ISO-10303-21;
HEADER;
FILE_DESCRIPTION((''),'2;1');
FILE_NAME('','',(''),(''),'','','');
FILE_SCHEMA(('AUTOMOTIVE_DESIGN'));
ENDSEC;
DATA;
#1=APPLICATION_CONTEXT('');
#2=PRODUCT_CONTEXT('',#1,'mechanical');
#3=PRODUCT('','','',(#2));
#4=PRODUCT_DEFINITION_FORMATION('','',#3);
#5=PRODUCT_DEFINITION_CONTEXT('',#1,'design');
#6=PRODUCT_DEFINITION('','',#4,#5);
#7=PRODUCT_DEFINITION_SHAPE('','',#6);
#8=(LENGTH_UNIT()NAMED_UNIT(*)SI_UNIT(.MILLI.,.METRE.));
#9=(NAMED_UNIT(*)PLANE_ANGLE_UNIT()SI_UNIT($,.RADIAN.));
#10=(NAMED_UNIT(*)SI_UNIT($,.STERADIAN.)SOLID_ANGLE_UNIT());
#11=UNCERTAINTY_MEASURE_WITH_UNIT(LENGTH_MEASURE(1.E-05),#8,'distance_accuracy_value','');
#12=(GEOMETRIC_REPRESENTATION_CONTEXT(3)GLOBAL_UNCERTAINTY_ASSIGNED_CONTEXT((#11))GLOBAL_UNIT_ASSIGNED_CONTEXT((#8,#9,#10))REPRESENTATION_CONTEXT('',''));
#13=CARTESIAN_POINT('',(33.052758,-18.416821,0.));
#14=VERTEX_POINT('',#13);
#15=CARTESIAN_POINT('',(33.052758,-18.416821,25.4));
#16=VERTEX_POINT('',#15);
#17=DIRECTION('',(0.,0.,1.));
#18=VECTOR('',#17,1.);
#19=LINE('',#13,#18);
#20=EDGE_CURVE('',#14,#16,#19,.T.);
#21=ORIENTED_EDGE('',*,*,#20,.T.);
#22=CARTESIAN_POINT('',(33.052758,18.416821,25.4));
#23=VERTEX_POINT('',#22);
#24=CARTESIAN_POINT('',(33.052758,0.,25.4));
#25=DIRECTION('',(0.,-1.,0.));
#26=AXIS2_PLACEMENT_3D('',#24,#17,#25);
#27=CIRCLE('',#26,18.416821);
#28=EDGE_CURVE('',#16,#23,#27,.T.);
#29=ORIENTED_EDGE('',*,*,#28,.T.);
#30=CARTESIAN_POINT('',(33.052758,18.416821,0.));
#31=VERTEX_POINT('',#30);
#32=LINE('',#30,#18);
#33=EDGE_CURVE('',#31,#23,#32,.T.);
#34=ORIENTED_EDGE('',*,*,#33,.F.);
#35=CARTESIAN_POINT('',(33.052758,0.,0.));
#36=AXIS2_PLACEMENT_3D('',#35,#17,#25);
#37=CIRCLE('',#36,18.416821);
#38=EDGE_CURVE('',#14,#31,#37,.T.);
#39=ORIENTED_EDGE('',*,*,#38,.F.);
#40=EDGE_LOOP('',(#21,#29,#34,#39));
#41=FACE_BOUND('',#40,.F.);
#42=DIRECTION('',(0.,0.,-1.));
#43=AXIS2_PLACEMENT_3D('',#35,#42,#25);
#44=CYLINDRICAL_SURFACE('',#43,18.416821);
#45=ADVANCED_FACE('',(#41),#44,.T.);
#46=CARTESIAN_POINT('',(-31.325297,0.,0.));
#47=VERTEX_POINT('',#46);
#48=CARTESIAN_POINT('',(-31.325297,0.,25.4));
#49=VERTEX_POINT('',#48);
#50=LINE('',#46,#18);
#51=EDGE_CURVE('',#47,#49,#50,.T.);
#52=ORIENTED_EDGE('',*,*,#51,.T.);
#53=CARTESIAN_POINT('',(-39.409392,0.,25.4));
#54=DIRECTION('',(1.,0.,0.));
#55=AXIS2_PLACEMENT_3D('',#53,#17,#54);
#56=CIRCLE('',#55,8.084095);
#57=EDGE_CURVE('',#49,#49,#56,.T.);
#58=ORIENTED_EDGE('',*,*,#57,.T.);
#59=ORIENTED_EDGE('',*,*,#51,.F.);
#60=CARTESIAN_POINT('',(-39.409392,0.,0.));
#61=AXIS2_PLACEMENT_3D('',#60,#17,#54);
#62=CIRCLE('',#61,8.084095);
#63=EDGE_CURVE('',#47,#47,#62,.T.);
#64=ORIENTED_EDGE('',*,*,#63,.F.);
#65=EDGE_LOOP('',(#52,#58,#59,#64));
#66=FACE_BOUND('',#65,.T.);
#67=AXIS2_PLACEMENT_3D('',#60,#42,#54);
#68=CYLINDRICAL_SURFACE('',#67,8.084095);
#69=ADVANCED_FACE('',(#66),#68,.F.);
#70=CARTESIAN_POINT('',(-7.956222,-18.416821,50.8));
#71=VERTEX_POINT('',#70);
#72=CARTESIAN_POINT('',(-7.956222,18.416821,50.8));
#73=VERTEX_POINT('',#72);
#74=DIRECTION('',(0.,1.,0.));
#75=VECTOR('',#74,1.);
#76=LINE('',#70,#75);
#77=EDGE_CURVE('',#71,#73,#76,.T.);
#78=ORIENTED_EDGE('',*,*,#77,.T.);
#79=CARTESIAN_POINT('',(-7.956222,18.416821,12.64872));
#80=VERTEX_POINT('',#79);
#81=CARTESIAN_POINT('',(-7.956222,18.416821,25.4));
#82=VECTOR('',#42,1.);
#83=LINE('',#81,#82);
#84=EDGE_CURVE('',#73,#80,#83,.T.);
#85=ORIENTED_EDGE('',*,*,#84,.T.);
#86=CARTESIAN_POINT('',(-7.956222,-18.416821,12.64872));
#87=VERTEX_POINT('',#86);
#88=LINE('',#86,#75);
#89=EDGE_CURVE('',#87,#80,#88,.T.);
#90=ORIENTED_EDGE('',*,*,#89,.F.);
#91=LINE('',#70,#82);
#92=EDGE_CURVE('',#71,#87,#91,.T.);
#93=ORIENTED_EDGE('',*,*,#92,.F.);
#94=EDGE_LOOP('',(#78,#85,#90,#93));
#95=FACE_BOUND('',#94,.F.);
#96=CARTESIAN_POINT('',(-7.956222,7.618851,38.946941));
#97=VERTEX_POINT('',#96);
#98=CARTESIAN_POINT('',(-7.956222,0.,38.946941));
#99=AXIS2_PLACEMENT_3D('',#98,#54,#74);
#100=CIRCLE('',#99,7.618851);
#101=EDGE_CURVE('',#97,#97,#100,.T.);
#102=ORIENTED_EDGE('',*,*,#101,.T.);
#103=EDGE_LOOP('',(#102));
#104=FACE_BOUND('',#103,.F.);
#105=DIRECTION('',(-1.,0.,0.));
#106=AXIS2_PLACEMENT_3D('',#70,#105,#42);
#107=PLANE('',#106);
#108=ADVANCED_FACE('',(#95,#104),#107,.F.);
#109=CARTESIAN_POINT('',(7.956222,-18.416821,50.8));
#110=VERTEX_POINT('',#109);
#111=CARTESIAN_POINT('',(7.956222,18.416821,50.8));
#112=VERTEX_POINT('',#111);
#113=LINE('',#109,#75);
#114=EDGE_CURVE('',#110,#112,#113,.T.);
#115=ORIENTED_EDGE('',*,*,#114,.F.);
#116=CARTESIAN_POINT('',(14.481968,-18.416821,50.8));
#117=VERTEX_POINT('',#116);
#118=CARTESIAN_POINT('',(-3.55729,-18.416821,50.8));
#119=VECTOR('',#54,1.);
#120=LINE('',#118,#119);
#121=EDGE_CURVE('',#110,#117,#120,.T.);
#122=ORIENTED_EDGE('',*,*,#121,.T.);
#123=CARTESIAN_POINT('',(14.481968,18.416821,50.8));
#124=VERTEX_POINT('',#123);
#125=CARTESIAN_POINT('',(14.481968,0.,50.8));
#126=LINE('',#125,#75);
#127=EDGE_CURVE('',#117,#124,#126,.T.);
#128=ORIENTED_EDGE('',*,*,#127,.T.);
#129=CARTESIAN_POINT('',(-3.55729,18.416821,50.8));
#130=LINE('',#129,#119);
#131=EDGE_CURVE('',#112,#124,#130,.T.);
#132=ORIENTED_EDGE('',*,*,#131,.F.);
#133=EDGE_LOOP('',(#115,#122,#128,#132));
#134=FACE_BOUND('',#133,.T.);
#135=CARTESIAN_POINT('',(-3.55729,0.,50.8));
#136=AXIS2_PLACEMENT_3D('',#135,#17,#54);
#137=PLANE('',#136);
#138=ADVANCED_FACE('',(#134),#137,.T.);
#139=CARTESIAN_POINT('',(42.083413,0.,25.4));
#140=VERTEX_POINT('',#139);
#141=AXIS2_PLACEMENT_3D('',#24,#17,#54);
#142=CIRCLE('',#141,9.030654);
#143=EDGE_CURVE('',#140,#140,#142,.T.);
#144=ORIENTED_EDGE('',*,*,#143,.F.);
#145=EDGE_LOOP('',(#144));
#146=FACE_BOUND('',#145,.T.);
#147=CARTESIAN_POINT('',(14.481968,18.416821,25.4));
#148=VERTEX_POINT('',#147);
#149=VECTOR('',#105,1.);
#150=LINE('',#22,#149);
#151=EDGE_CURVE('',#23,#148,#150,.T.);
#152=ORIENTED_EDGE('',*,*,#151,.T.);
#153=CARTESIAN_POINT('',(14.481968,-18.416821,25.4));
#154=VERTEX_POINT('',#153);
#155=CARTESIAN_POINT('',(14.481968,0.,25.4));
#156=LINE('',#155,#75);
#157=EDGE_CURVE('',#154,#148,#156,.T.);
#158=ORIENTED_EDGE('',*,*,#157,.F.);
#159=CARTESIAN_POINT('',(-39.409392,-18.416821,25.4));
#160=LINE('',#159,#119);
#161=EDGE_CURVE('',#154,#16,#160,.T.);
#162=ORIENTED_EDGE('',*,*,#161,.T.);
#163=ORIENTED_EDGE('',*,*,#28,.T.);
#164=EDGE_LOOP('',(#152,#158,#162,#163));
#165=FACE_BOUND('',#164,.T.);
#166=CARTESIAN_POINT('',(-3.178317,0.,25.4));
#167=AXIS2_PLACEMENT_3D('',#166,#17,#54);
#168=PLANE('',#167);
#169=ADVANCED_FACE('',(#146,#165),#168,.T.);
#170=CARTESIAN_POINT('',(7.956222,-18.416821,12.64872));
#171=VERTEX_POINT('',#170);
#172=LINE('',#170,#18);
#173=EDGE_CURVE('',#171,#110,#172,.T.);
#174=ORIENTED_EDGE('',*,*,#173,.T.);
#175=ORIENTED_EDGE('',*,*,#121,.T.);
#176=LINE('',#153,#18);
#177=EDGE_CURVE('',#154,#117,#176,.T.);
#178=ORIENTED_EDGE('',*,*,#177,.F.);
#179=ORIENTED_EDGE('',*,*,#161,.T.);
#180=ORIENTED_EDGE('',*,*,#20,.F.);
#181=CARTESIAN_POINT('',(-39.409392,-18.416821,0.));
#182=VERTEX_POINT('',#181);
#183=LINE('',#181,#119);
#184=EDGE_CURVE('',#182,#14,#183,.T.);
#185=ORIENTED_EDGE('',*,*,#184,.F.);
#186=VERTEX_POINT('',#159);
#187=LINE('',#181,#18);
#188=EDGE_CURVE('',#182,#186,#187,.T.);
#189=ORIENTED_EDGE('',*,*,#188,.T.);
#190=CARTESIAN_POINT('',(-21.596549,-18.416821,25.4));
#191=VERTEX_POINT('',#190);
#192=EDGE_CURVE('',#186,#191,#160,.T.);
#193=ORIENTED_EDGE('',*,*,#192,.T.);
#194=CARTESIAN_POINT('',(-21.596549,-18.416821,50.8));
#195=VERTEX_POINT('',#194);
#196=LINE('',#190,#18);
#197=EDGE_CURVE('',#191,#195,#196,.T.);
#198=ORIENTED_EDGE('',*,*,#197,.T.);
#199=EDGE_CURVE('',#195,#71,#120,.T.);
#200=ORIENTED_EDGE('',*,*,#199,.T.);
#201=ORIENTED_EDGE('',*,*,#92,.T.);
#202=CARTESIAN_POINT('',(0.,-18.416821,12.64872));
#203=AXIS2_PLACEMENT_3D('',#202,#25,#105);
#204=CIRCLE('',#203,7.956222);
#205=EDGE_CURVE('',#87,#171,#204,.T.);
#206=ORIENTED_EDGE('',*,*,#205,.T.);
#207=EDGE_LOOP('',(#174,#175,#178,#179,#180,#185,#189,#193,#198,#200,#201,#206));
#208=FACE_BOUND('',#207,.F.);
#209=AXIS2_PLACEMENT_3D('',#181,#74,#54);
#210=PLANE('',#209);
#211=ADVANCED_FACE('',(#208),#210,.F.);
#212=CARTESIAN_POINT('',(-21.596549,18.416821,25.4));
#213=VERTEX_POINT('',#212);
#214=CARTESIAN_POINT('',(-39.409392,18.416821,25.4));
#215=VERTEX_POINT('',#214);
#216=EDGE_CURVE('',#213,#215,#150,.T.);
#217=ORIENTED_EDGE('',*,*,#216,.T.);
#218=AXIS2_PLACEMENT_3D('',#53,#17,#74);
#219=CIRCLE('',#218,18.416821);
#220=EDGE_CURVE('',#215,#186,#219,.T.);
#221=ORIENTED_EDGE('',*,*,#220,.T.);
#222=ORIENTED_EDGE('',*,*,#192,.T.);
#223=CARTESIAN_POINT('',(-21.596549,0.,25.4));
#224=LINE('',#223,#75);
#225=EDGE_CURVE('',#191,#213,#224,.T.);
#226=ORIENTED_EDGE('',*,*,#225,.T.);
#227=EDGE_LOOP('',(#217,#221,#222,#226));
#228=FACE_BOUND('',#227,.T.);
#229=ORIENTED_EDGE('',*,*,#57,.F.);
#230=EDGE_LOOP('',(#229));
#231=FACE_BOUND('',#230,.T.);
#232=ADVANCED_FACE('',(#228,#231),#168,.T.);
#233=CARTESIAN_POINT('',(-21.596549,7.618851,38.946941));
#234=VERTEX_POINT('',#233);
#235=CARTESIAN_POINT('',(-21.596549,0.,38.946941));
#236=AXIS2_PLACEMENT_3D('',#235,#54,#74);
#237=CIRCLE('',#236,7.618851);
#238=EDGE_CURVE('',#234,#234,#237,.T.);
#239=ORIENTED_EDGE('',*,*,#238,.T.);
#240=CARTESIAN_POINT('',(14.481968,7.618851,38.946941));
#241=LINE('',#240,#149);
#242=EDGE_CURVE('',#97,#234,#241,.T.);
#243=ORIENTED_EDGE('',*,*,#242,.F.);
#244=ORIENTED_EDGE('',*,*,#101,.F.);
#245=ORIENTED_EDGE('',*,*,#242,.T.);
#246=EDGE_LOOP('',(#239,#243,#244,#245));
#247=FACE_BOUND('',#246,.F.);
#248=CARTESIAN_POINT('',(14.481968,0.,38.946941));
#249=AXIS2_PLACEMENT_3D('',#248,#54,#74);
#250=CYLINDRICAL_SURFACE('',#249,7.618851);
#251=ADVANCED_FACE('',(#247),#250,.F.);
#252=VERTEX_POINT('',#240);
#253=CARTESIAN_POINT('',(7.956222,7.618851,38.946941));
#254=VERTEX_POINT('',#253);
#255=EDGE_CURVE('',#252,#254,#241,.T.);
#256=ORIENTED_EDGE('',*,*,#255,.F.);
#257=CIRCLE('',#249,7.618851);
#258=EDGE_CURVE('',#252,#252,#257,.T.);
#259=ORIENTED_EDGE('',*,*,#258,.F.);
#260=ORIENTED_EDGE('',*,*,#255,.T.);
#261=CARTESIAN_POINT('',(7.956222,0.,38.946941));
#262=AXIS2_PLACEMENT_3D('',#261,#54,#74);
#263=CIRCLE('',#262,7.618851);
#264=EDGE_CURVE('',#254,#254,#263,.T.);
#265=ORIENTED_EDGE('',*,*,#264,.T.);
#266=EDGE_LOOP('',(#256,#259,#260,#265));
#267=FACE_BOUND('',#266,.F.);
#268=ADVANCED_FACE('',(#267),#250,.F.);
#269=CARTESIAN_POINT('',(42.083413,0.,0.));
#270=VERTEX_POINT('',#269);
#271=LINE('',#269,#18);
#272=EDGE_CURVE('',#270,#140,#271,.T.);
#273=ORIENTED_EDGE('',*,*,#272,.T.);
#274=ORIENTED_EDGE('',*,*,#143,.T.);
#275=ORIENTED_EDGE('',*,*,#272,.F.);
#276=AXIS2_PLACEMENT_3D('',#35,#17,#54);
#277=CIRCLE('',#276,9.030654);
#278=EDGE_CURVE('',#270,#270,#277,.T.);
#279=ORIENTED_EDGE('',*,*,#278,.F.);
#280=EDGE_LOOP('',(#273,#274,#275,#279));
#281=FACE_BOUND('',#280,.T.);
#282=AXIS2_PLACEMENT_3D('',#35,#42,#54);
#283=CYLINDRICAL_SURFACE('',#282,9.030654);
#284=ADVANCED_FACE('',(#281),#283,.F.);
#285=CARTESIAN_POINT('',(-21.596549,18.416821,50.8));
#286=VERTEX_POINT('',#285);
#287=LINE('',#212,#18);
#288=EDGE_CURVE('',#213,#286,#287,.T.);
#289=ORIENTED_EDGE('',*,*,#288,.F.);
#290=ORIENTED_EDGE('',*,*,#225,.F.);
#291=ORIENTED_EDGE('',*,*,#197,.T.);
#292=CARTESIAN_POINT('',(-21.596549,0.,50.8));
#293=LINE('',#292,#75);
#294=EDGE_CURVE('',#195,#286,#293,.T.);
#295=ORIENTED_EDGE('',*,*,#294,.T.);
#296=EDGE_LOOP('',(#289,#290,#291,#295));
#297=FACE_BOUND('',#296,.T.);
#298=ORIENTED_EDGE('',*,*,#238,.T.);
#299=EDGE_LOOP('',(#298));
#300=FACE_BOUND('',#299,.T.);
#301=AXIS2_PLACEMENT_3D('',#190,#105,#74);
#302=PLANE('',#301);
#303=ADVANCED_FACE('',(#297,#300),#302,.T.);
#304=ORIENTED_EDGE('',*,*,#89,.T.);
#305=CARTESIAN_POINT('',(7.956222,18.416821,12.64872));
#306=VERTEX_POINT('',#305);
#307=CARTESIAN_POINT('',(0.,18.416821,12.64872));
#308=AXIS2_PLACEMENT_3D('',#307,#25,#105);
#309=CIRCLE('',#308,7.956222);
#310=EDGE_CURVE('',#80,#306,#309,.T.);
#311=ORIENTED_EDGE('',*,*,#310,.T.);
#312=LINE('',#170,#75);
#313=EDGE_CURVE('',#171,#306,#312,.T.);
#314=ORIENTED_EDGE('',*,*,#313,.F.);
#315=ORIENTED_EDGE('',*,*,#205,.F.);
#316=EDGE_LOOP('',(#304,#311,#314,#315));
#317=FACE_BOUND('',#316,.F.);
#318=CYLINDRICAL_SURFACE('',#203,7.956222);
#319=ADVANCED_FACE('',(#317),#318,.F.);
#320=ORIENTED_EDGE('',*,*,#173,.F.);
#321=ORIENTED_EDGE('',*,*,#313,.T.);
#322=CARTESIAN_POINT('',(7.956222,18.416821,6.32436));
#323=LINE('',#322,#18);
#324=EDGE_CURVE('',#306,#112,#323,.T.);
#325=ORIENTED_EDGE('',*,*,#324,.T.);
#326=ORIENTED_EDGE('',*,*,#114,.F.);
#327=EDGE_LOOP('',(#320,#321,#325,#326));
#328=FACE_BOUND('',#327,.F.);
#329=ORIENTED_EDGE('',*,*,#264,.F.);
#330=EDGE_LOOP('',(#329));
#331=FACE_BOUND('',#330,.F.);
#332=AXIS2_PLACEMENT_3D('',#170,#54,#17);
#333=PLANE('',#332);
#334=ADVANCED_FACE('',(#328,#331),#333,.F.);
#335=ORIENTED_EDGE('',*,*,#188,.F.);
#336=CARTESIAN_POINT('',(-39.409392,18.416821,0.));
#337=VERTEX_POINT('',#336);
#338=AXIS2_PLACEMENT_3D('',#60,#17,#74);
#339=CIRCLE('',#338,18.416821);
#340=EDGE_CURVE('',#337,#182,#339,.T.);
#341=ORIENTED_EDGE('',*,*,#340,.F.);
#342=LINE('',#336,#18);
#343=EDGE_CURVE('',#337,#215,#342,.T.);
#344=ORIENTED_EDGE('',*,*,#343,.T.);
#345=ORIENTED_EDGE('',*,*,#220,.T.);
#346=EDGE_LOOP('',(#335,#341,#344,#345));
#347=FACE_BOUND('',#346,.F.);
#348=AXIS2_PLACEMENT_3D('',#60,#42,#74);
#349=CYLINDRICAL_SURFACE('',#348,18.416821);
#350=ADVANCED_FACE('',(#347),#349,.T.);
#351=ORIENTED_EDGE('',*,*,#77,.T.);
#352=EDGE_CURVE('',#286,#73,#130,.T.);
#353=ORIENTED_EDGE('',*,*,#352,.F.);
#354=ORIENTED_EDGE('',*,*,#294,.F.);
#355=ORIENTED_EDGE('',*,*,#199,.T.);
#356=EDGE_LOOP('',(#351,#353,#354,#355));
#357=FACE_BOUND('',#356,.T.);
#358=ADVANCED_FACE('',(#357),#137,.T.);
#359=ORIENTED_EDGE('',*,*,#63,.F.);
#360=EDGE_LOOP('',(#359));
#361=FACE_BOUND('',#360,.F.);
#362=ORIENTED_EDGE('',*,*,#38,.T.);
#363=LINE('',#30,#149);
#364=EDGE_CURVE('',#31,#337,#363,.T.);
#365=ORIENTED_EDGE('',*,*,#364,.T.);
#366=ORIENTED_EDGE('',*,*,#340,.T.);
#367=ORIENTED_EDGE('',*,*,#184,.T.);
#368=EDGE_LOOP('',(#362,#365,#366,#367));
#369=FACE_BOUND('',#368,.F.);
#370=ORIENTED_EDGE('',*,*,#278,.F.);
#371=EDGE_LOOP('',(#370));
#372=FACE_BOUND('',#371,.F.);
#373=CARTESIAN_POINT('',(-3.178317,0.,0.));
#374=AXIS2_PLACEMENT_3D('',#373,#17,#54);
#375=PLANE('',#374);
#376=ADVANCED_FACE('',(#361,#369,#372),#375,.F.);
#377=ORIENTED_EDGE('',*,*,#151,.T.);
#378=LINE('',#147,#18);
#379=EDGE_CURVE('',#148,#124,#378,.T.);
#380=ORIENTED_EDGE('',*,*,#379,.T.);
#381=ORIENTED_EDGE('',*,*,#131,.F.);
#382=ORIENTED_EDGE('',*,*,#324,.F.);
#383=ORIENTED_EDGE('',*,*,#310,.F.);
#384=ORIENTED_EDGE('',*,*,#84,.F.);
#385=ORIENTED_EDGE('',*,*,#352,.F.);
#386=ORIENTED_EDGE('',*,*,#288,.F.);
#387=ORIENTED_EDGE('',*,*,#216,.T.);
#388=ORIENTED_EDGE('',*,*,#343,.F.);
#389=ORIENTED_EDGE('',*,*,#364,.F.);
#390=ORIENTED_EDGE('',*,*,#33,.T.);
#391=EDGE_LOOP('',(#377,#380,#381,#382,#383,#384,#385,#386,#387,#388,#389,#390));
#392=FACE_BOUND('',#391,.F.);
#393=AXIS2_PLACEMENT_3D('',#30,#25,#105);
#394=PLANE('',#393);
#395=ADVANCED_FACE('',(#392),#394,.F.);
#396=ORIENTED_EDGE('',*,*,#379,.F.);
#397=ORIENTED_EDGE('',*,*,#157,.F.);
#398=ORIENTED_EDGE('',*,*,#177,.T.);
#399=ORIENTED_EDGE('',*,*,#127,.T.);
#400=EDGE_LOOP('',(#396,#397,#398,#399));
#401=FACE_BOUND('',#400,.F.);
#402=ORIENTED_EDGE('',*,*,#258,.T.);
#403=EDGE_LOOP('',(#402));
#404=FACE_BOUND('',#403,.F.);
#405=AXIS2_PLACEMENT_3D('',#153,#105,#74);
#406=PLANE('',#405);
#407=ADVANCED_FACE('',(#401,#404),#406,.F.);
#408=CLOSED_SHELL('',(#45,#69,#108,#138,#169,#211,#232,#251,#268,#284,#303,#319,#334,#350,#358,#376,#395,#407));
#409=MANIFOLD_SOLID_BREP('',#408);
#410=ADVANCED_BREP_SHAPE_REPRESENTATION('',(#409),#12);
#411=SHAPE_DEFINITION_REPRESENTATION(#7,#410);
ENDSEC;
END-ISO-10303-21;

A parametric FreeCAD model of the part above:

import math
import FreeCAD as App
import Part
import Sketcher
Q = App.Units.Quantity

doc = App.newDocument("Part")
params = doc.addObject("Spreadsheet::Sheet", "Params")
for row, (alias, value) in enumerate([
    ("pad1_length", "1 in"),
    ("pad2_length", "1 in"),
], start=1):
    params.set(f"A{row}", alias)
    params.set(f"B{row}", "=" + value)
    params.setAlias(f"B{row}", alias)

body = doc.addObject("PartDesign::Body", "Body")

sketch1 = body.newObject("Sketcher::SketchObject", "Sketch")
sketch1.AttachmentSupport = (doc.getObject("XY_Plane"), [""])
sketch1.MapMode = "FlatFace"
sketch1.addGeometry(Part.LineSegment(App.Vector(33, 18, 0), App.Vector(-39, 18, 0)), False)
sketch1.addGeometry(Part.ArcOfCircle(Part.Circle(App.Vector(-39, 0, 0), App.Vector(0, 0, 1), 18), math.radians(90), math.radians(270)), False)
sketch1.addGeometry(Part.LineSegment(App.Vector(-39, -18, 0), App.Vector(33, -18, 0)), False)
sketch1.addGeometry(Part.ArcOfCircle(Part.Circle(App.Vector(33, 0, 0), App.Vector(0, 0, 1), 18), math.radians(-90), math.radians(90)), False)
sketch1.addGeometry(Part.Circle(App.Vector(-39, 0, 0), App.Vector(0, 0, 1), 8), False)
sketch1.addGeometry(Part.Circle(App.Vector(33, 0, 0), App.Vector(0, 0, 1), 9), False)
sketch1.addConstraint(Sketcher.Constraint("Tangent", 0, 2, 1, 1))
sketch1.addConstraint(Sketcher.Constraint("Tangent", 1, 2, 2, 1))
sketch1.addConstraint(Sketcher.Constraint("Tangent", 2, 2, 3, 1))
sketch1.addConstraint(Sketcher.Constraint("Tangent", 3, 2, 0, 1))
sketch1.addConstraint(Sketcher.Constraint("Horizontal", 0))
sketch1.addConstraint(Sketcher.Constraint("Horizontal", 2))
sketch1.addConstraint(Sketcher.Constraint("Coincident", 4, 3, 1, 3))
sketch1.addConstraint(Sketcher.Constraint("Coincident", 5, 3, 3, 3))
sketch1.addConstraint(Sketcher.Constraint("PointOnObject", 1, 3, -1))
sketch1.addConstraint(Sketcher.Constraint("Diameter", 4, 16.168189))
sketch1.addConstraint(Sketcher.Constraint("Diameter", 5, 18.061309))
sketch1.addConstraint(Sketcher.Constraint("Radius", 1, 18.416821))
sketch1.addConstraint(Sketcher.Constraint("DistanceX", 0, 2, 0, 1, 72.46215))
sketch1.addConstraint(Sketcher.Constraint("DistanceX", 1, 3, -1, 1, 39.409392))
pad1 = body.newObject("PartDesign::Pad", "Pad")
pad1.Profile = sketch1
pad1.setExpression("Length", "Params.pad1_length")

sketch2 = body.newObject("Sketcher::SketchObject", "Sketch001")
sketch2.AttachmentSupport = (doc.getObject("XY_Plane"), [""])
sketch2.MapMode = "FlatFace"
sketch2.AttachmentOffset = App.Placement(App.Vector(0, 0, 1 * 25.4), App.Rotation())
sketch2.addGeometry(Part.LineSegment(App.Vector(-22, 18, 0), App.Vector(-22, -18, 0)), False)
sketch2.addGeometry(Part.LineSegment(App.Vector(-22, -18, 0), App.Vector(14, -18, 0)), False)
sketch2.addGeometry(Part.LineSegment(App.Vector(14, -18, 0), App.Vector(14, 18, 0)), False)
sketch2.addGeometry(Part.LineSegment(App.Vector(14, 18, 0), App.Vector(-22, 18, 0)), False)
sketch2.addConstraint(Sketcher.Constraint("Coincident", 0, 2, 1, 1))
sketch2.addConstraint(Sketcher.Constraint("Coincident", 1, 2, 2, 1))
sketch2.addConstraint(Sketcher.Constraint("Coincident", 2, 2, 3, 1))
sketch2.addConstraint(Sketcher.Constraint("Coincident", 3, 2, 0, 1))
sketch2.addConstraint(Sketcher.Constraint("Vertical", 0))
sketch2.addConstraint(Sketcher.Constraint("Horizontal", 1))
sketch2.addConstraint(Sketcher.Constraint("Vertical", 2))
sketch2.addConstraint(Sketcher.Constraint("Horizontal", 3))
sketch2.addConstraint(Sketcher.Constraint("DistanceX", 1, 1, 1, 2, 36.078517))
sketch2.addConstraint(Sketcher.Constraint("DistanceY", 0, 2, 0, 1, 36.833642))
sketch2.addConstraint(Sketcher.Constraint("DistanceX", 0, 2, -1, 1, 21.596549))
sketch2.addConstraint(Sketcher.Constraint("DistanceY", 0, 2, -1, 1, 18.416821))
pad2 = body.newObject("PartDesign::Pad", "Pad001")
pad2.Profile = sketch2
pad2.setExpression("Length", "Params.pad2_length")

sketch3 = body.newObject("Sketcher::SketchObject", "Sketch002")
sketch3.AttachmentSupport = (doc.getObject("XZ_Plane"), [""])
sketch3.MapMode = "FlatFace"
sketch3.AttachmentOffset = App.Placement(App.Vector(0, 0, 18.416821), App.Rotation())
sketch3.addGeometry(Part.LineSegment(App.Vector(-8, 51, 0), App.Vector(-8, 13, 0)), False)
sketch3.addGeometry(Part.ArcOfCircle(Part.Circle(App.Vector(0, 13, 0), App.Vector(0, 0, 1), 8), math.radians(180), math.radians(360)), False)
sketch3.addGeometry(Part.LineSegment(App.Vector(8, 13, 0), App.Vector(8, 51, 0)), False)
sketch3.addGeometry(Part.LineSegment(App.Vector(8, 51, 0), App.Vector(-8, 51, 0)), False)
sketch3.addConstraint(Sketcher.Constraint("Tangent", 0, 2, 1, 1))
sketch3.addConstraint(Sketcher.Constraint("Tangent", 1, 2, 2, 1))
sketch3.addConstraint(Sketcher.Constraint("Coincident", 2, 2, 3, 1))
sketch3.addConstraint(Sketcher.Constraint("Coincident", 3, 2, 0, 1))
sketch3.addConstraint(Sketcher.Constraint("Vertical", 0))
sketch3.addConstraint(Sketcher.Constraint("Vertical", 2))
sketch3.addConstraint(Sketcher.Constraint("Horizontal", 3))
sketch3.addConstraint(Sketcher.Constraint("PointOnObject", 1, 3, -2))
sketch3.addConstraint(Sketcher.Constraint("DistanceY", -1, 1, 2, 2, Q("2 in")))
sketch3.addConstraint(Sketcher.Constraint("Radius", 1, 7.956222))
sketch3.addConstraint(Sketcher.Constraint("DistanceY", 0, 2, 0, 1, 38.15128))
pocket1 = body.newObject("PartDesign::Pocket", "Pocket")
pocket1.Profile = sketch3
pocket1.Type = "ThroughAll"

sketch4 = body.newObject("Sketcher::SketchObject", "Sketch003")
sketch4.AttachmentSupport = (doc.getObject("YZ_Plane"), [""])
sketch4.MapMode = "FlatFace"
sketch4.AttachmentOffset = App.Placement(App.Vector(0, 0, 14.481968), App.Rotation())
sketch4.addGeometry(Part.Circle(App.Vector(0, 39, 0), App.Vector(0, 0, 1), 8), False)
sketch4.addConstraint(Sketcher.Constraint("PointOnObject", 0, 3, -2))
sketch4.addConstraint(Sketcher.Constraint("Diameter", 0, 15.237703))
sketch4.addConstraint(Sketcher.Constraint("DistanceY", -1, 1, 0, 3, 38.946941))
pocket2 = body.newObject("PartDesign::Pocket", "Pocket001")
pocket2.Profile = sketch4
pocket2.Type = "ThroughAll"

doc.recompute()
